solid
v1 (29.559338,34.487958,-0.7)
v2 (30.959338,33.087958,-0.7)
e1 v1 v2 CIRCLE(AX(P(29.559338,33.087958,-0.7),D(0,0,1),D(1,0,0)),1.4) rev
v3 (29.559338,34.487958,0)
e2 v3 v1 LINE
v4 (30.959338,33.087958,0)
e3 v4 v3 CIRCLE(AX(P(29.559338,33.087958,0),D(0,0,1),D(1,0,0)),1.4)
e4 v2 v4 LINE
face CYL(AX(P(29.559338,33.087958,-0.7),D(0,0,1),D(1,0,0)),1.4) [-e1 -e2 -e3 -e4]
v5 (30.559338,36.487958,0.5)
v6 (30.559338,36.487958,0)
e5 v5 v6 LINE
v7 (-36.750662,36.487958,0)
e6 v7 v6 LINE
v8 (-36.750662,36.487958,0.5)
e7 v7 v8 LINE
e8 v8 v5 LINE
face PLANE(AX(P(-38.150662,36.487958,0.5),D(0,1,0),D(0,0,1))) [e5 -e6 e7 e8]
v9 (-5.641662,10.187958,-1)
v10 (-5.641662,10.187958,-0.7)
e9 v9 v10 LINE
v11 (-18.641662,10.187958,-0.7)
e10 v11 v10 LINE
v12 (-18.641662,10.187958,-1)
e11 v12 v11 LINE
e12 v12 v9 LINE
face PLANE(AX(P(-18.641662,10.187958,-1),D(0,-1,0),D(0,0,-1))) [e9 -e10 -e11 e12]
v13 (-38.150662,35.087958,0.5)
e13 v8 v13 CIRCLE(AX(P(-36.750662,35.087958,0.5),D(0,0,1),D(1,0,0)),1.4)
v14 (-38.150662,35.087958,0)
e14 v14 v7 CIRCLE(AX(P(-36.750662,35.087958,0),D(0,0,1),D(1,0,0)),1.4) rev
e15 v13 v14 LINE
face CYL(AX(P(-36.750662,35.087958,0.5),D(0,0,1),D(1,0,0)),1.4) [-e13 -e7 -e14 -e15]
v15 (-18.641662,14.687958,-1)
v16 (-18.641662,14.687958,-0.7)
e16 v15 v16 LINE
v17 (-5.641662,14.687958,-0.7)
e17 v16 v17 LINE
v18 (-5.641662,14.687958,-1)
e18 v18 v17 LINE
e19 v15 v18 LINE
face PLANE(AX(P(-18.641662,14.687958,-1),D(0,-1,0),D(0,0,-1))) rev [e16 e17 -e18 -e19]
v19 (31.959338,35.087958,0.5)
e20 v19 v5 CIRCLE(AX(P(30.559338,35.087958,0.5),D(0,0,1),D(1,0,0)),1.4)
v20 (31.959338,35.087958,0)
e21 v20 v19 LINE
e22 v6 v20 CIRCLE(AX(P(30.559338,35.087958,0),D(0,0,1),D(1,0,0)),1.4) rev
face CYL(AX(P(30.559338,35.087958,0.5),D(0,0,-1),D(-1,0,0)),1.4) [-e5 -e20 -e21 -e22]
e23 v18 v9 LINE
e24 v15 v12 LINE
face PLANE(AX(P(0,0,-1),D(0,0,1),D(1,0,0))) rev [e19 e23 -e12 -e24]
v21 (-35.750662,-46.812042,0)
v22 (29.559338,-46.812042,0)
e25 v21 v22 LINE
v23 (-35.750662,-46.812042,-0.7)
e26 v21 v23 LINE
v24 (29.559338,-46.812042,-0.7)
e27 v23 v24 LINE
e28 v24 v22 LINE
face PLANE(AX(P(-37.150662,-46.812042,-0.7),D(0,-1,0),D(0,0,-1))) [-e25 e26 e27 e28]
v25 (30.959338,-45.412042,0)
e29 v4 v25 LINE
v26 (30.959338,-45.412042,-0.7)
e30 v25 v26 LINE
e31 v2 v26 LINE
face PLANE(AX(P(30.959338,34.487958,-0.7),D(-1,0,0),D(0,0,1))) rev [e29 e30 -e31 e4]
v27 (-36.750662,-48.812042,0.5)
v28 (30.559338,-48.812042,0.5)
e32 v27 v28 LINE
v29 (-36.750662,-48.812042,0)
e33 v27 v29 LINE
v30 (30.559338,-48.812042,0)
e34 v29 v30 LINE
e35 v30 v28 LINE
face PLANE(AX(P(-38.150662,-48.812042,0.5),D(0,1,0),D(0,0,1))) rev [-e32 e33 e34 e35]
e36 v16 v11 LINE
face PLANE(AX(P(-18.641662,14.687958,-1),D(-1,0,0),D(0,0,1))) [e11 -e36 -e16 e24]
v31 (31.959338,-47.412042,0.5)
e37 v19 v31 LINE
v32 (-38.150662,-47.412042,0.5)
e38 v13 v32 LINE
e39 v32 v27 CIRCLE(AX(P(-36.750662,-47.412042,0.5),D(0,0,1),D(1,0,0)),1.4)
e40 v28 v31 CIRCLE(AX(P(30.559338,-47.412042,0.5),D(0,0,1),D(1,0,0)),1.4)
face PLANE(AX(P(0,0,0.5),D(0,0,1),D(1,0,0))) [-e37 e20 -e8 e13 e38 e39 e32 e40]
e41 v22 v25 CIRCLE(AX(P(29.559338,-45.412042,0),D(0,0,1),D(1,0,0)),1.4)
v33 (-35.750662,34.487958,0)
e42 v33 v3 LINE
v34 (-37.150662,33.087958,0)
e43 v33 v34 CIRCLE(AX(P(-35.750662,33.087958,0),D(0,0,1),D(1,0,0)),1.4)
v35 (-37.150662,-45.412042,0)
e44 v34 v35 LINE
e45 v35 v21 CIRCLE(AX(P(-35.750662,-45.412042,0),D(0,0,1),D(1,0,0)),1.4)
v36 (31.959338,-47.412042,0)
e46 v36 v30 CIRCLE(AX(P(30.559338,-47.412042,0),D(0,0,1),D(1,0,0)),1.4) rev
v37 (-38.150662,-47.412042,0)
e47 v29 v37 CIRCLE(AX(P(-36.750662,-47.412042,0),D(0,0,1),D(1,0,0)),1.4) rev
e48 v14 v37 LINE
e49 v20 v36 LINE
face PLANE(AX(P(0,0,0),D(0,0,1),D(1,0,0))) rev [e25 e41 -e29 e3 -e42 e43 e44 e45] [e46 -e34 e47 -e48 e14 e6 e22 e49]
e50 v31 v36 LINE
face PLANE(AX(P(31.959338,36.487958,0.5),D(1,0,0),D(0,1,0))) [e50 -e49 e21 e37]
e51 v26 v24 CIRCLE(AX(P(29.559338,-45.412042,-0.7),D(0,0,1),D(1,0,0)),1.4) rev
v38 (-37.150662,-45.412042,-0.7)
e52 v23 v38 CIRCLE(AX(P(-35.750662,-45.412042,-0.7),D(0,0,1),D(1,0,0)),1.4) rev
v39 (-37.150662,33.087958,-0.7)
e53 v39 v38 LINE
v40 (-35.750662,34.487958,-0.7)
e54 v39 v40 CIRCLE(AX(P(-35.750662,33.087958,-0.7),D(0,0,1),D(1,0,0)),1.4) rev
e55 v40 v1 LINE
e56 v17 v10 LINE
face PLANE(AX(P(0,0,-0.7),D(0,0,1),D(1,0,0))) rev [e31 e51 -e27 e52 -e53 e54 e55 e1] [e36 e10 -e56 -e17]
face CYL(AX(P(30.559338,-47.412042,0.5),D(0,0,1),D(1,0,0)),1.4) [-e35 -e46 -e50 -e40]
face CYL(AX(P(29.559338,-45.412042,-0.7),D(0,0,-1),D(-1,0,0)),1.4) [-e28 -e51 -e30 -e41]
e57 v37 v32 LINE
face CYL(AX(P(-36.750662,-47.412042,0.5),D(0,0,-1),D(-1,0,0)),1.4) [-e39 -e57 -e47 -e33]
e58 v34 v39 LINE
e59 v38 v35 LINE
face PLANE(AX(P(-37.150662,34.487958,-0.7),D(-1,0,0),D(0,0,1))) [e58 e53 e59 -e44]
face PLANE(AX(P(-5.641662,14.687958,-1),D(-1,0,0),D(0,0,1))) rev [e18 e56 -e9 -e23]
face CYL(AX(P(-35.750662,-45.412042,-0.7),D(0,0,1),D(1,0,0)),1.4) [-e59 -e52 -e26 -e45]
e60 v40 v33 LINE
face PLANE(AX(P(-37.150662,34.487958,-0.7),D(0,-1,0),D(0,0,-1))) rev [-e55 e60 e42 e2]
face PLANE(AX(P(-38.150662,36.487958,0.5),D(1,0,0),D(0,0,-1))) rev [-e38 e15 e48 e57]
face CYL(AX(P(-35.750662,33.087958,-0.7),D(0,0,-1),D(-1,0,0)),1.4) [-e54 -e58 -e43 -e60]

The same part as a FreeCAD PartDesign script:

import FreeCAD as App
import Part
import Sketcher


def edges_at(feature, points):
    """Names of the edges that pass closest to the given points."""
    edges = feature.Shape.Edges
    near = lambda p: min(range(len(edges)), key=lambda i: edges[i].distToShape(Part.Vertex(*p))[0])
    return sorted({f"Edge{near(p) + 1}" for p in points})

doc = App.newDocument("Part")
body = doc.addObject("PartDesign::Body", "Body")

sketch1 = body.newObject("Sketcher::SketchObject", "Sketch")
sketch1.AttachmentSupport = (doc.getObject("XY_Plane"), [""])
sketch1.MapMode = "FlatFace"
sketch1.addGeometry([
    Part.LineSegment(App.Vector(-38.150662, 36.487958, 0), App.Vector(-38.150662, -48.812042, 0)),
    Part.LineSegment(App.Vector(-38.150662, -48.812042, 0), App.Vector(31.959338, -48.812042, 0)),
    Part.LineSegment(App.Vector(31.959338, -48.812042, 0), App.Vector(31.959338, 36.487958, 0)),
    Part.LineSegment(App.Vector(31.959338, 36.487958, 0), App.Vector(-38.150662, 36.487958, 0)),
], False)
sketch1.addConstraint([
    Sketcher.Constraint("Coincident", 0, 2, 1, 1),
    Sketcher.Constraint("Coincident", 1, 2, 2, 1),
    Sketcher.Constraint("Coincident", 2, 2, 3, 1),
    Sketcher.Constraint("Coincident", 3, 2, 0, 1),
    Sketcher.Constraint("Vertical", 0),
    Sketcher.Constraint("Horizontal", 1),
    Sketcher.Constraint("Vertical", 2),
    Sketcher.Constraint("Horizontal", 3),
    Sketcher.Constraint("DistanceY", 0, 2, 0, 1, 85.3),
    Sketcher.Constraint("DistanceX", 1, 1, 1, 2, 70.11),
    Sketcher.Constraint("DistanceX", 0, 2, -1, 1, 38.150662),
    Sketcher.Constraint("DistanceY", 0, 2, -1, 1, 48.812042),
])
pad1 = body.newObject("PartDesign::Pad", "Pad")
pad1.Profile = sketch1
pad1.Length = 0.5

sketch2 = body.newObject("Sketcher::SketchObject", "Sketch001")
sketch2.AttachmentSupport = (doc.getObject("XY_Plane"), [""])
sketch2.MapMode = "FlatFace"
sketch2.addGeometry([
    Part.LineSegment(App.Vector(-37.150662, 34.487958, 0), App.Vector(-37.150662, -46.812042, 0)),
    Part.LineSegment(App.Vector(-37.150662, -46.812042, 0), App.Vector(30.959338, -46.812042, 0)),
    Part.LineSegment(App.Vector(30.959338, -46.812042, 0), App.Vector(30.959338, 34.487958, 0)),
    Part.LineSegment(App.Vector(30.959338, 34.487958, 0), App.Vector(-37.150662, 34.487958, 0)),
], False)
sketch2.addConstraint([
    Sketcher.Constraint("Coincident", 0, 2, 1, 1),
    Sketcher.Constraint("Coincident", 1, 2, 2, 1),
    Sketcher.Constraint("Coincident", 2, 2, 3, 1),
    Sketcher.Constraint("Coincident", 3, 2, 0, 1),
    Sketcher.Constraint("Vertical", 0),
    Sketcher.Constraint("Horizontal", 1),
    Sketcher.Constraint("Vertical", 2),
    Sketcher.Constraint("Horizontal", 3),
    Sketcher.Constraint("DistanceY", 0, 2, 0, 1, 81.3),
    Sketcher.Constraint("DistanceX", 1, 1, 1, 2, 68.11),
    Sketcher.Constraint("DistanceX", 0, 2, -1, 1, 37.150662),
    Sketcher.Constraint("DistanceY", 0, 2, -1, 1, 46.812042),
])
pad2 = body.newObject("PartDesign::Pad", "Pad001")
pad2.Profile = sketch2
pad2.Length = 0.7
pad2.Reversed = True
doc.recompute()

fillet = body.newObject("PartDesign::Fillet", "Fillet")
fillet.Base = (pad2, edges_at(pad2, [
    (-37.151, -46.812, -0.35),
    (-37.151, 34.488, -0.35),
    (30.959, 34.488, -0.35),
    (30.959, -46.812, -0.35),
]))
fillet.Radius = 1.4
doc.recompute()

fillet2 = body.newObject("PartDesign::Fillet", "Fillet001")
fillet2.Base = (fillet, edges_at(fillet, [
    (-38.151, 36.488, 0.25),
    (31.959, 36.488, 0.25),
    (31.959, -48.812, 0.25),
    (-38.151, -48.812, 0.25),
]))
fillet2.Radius = 1.4

sketch3 = body.newObject("Sketcher::SketchObject", "Sketch002")
sketch3.AttachmentSupport = (doc.getObject("XY_Plane"), [""])
sketch3.MapMode = "FlatFace"
sketch3.addGeometry([
    Part.LineSegment(App.Vector(-18.641662, 14.687958, 0), App.Vector(-18.641662, 10.187958, 0)),
    Part.LineSegment(App.Vector(-18.641662, 10.187958, 0), App.Vector(-5.641662, 10.187958, 0)),
    Part.LineSegment(App.Vector(-5.641662, 10.187958, 0), App.Vector(-5.641662, 14.687958, 0)),
    Part.LineSegment(App.Vector(-5.641662, 14.687958, 0), App.Vector(-18.641662, 14.687958, 0)),
], False)
sketch3.addConstraint([
    Sketcher.Constraint("Coincident", 0, 2, 1, 1),
    Sketcher.Constraint("Coincident", 1, 2, 2, 1),
    Sketcher.Constraint("Coincident", 2, 2, 3, 1),
    Sketcher.Constraint("Coincident", 3, 2, 0, 1),
    Sketcher.Constraint("Vertical", 0),
    Sketcher.Constraint("Horizontal", 1),
    Sketcher.Constraint("Vertical", 2),
    Sketcher.Constraint("Horizontal", 3),
    Sketcher.Constraint("DistanceX", 1, 1, 1, 2, 13.0),
    Sketcher.Constraint("DistanceY", 0, 2, 0, 1, 4.5),
    Sketcher.Constraint("DistanceX", 0, 2, -1, 1, 18.641662),
    Sketcher.Constraint("DistanceY", -1, 1, 0, 2, 10.187958),
])
pad3 = body.newObject("PartDesign::Pad", "Pad002")
pad3.Profile = sketch3
pad3.Length = 1
pad3.Reversed = True

doc.recompute()
